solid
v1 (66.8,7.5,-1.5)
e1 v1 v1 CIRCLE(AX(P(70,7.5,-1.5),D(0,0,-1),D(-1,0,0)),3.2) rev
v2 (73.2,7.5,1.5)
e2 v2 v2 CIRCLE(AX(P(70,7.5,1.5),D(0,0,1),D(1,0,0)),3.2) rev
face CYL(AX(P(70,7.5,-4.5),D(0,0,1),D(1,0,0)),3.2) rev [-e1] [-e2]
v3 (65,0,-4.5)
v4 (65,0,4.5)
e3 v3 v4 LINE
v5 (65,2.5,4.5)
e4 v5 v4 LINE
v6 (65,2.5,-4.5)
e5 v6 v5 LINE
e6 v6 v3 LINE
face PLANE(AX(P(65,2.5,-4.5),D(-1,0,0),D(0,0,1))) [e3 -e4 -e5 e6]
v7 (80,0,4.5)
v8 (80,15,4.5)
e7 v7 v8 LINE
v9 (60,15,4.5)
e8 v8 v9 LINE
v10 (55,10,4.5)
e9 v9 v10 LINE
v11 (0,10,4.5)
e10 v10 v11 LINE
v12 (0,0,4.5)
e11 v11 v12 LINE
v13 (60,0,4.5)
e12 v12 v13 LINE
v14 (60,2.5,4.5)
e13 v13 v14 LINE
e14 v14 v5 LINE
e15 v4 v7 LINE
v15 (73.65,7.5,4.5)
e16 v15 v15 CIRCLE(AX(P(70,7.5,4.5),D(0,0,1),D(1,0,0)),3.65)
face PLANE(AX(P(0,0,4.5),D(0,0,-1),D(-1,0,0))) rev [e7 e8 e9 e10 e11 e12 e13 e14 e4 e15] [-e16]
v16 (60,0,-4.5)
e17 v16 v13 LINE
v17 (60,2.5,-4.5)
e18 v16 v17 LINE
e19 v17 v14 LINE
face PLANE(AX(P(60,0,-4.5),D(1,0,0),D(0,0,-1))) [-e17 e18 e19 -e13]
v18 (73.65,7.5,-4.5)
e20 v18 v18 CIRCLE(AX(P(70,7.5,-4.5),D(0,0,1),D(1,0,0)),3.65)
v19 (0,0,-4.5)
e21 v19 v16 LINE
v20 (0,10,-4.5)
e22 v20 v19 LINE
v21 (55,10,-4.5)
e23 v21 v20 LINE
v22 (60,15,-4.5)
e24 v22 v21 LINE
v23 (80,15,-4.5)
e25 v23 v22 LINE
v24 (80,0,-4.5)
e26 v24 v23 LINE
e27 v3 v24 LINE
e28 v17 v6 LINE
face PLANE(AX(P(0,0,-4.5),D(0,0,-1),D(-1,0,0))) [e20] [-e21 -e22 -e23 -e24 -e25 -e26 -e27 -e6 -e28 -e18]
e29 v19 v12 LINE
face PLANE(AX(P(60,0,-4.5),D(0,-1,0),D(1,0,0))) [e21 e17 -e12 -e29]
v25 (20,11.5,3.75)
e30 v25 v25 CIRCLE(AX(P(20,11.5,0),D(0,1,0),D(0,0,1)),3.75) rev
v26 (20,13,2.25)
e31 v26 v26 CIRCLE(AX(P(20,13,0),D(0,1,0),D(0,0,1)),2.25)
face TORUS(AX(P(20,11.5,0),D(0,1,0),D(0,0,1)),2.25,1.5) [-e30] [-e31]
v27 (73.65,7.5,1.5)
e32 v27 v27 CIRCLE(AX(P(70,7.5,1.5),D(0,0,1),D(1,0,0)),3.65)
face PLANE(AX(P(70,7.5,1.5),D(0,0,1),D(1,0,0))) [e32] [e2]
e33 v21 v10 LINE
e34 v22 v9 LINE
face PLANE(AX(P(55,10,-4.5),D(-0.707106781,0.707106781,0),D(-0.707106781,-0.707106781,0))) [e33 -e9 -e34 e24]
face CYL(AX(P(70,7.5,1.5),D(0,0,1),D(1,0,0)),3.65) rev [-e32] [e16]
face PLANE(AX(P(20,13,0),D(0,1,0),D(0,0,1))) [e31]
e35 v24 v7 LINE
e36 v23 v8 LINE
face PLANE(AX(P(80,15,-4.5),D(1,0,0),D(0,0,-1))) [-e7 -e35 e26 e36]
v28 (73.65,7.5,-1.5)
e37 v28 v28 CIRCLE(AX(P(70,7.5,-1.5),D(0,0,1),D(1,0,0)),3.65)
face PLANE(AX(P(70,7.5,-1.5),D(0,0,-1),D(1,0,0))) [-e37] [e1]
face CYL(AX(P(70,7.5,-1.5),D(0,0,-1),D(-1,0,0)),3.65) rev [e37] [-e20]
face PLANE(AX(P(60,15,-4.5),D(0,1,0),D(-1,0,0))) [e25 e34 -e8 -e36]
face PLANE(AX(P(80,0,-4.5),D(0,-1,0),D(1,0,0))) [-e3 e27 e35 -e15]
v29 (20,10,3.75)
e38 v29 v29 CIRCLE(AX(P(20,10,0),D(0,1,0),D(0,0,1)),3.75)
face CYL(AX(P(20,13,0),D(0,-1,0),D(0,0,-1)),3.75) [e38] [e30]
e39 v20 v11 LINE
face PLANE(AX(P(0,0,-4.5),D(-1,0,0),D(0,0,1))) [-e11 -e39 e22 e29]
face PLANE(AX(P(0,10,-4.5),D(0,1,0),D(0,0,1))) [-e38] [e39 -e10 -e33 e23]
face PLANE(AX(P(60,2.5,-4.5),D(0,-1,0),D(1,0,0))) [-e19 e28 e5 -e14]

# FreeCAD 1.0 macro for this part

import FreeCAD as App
import Part
import Sketcher


def edges_at(feature, points):
    """Names of the edges that pass closest to the given points."""
    edges = feature.Shape.Edges
    near = lambda p: min(range(len(edges)), key=lambda i: edges[i].distToShape(Part.Vertex(*p))[0])
    return sorted({f"Edge{near(p) + 1}" for p in points})

doc = App.newDocument("Part")
params = doc.addObject("Spreadsheet::Sheet", "Params")
for row, (alias, value) in enumerate([
    ("sketch1_diameter", "6.4 mm"),
    ("sketch1_width", "55 mm"),
    ("sketch1_width2", "60 mm"),
    ("sketch1_width3", "5 mm"),
    ("sketch1_width4", "15 mm"),
    ("pad1_length", "4.5 mm"),
    ("pad1_length2", "4.5 mm"),
    ("sketch2_diameter", "7.3 mm"),
    ("pocket1_length", "3 mm"),
    ("sketch3_diameter", "7.5 mm"),
    ("pad2_length", "3 mm"),
    ("fillet_radius", "1.5 mm"),
], start=1):
    params.set(f"A{row}", alias)
    params.set(f"B{row}", "=" + value)
    params.setAlias(f"B{row}", alias)

body = doc.addObject("PartDesign::Body", "Body")

sketch1 = body.newObject("Sketcher::SketchObject", "Sketch")
sketch1.AttachmentSupport = (doc.getObject("XY_Plane"), [""])
sketch1.MapMode = "FlatFace"
sketch1.addGeometry([
    Part.LineSegment(App.Vector(55, 10, 0), App.Vector(0, 10, 0)),
    Part.LineSegment(App.Vector(0, 10, 0), App.Vector(0, 0, 0)),
    Part.LineSegment(App.Vector(0, 0, 0), App.Vector(60, 0, 0)),
    Part.LineSegment(App.Vector(60, 0, 0), App.Vector(60, 2.5, 0)),
    Part.LineSegment(App.Vector(60, 2.5, 0), App.Vector(65, 2.5, 0)),
    Part.LineSegment(App.Vector(65, 2.5, 0), App.Vector(65, 0, 0)),
    Part.LineSegment(App.Vector(65, 0, 0), App.Vector(80, 0, 0)),
    Part.LineSegment(App.Vector(80, 0, 0), App.Vector(80, 15, 0)),
    Part.LineSegment(App.Vector(80, 15, 0), App.Vector(60, 15, 0)),
    Part.LineSegment(App.Vector(60, 15, 0), App.Vector(55, 10, 0)),
    Part.Circle(App.Vector(70, 7.5, 0), App.Vector(0, 0, 1), 3.2),
], False)
sketch1.addConstraint([
    Sketcher.Constraint("Coincident", 0, 2, 1, 1),
    Sketcher.Constraint("Coincident", 1, 2, 2, 1),
    Sketcher.Constraint("Coincident", 2, 2, 3, 1),
    Sketcher.Constraint("Coincident", 3, 2, 4, 1),
    Sketcher.Constraint("Coincident", 4, 2, 5, 1),
    Sketcher.Constraint("Coincident", 5, 2, 6, 1),
    Sketcher.Constraint("Coincident", 6, 2, 7, 1),
    Sketcher.Constraint("Coincident", 7, 2, 8, 1),
    Sketcher.Constraint("Coincident", 8, 2, 9, 1),
    Sketcher.Constraint("Coincident", 9, 2, 0, 1),
    Sketcher.Constraint("Horizontal", 0),
    Sketcher.Constraint("Vertical", 1),
    Sketcher.Constraint("Horizontal", 2),
    Sketcher.Constraint("Vertical", 3),
    Sketcher.Constraint("Horizontal", 4),
    Sketcher.Constraint("Vertical", 5),
    Sketcher.Constraint("Horizontal", 6),
    Sketcher.Constraint("Vertical", 7),
    Sketcher.Constraint("Horizontal", 8),
    Sketcher.Constraint("Coincident", 1, 2, -1, 1),
    Sketcher.Constraint("PointOnObject", 5, 2, -1),
    Sketcher.Constraint("Vertical", 3, 2, 8, 2),
    Sketcher.Constraint("Equal", 6, 7),
    Sketcher.Constraint("Diameter", 10, 6.4),
    Sketcher.Constraint("DistanceX", 0, 2, 0, 1, 55.0),
    Sketcher.Constraint("DistanceX", 2, 1, 2, 2, 60.0),
    Sketcher.Constraint("DistanceX", 4, 1, 4, 2, 5.0),
    Sketcher.Constraint("DistanceX", 6, 1, 6, 2, 15.0),
    Sketcher.Constraint("DistanceY", 1, 2, 1, 1, 10.0),
    Sketcher.Constraint("DistanceY", 3, 1, 3, 2, 2.5),
    Sketcher.Constraint("DistanceX", -1, 1, 10, 3, 70.0),
    Sketcher.Constraint("DistanceY", 3, 2, 10, 3, 5.0),
])
sketch1.setExpression("Constraints[23]", "Params.sketch1_diameter")
sketch1.setExpression("Constraints[24]", "Params.sketch1_width")
sketch1.setExpression("Constraints[25]", "Params.sketch1_width2")
sketch1.setExpression("Constraints[26]", "Params.sketch1_width3")
sketch1.setExpression("Constraints[27]", "Params.sketch1_width4")
pad1 = body.newObject("PartDesign::Pad", "Pad")
pad1.Profile = sketch1
pad1.Type = "TwoLengths"
pad1.setExpression("Length", "Params.pad1_length")
pad1.setExpression("Length2", "Params.pad1_length2")

sketch2 = body.newObject("Sketcher::SketchObject", "Sketch001")
sketch2.AttachmentSupport = (doc.getObject("XY_Plane"), [""])
sketch2.MapMode = "FlatFace"
sketch2.AttachmentOffset = App.Placement(App.Vector(0, 0, 4.5), App.Rotation())
sketch2.addGeometry(Part.Circle(App.Vector(70, 7.5, 0), App.Vector(0, 0, 1), 3.6), False)
sketch2.addConstraint([
    Sketcher.Constraint("Diameter", 0, 7.3),
    Sketcher.Constraint("DistanceX", -1, 1, 0, 3, 70.0),
    Sketcher.Constraint("DistanceY", -1, 1, 0, 3, 7.5),
])
sketch2.setExpression("Constraints[0]", "Params.sketch2_diameter")
pocket1 = body.newObject("PartDesign::Pocket", "Pocket")
pocket1.Profile = sketch2
pocket1.setExpression("Length", "Params.pocket1_length")
doc.recompute()

mirrored = body.newObject("PartDesign::Mirrored", "Mirrored")
mirrored.Originals = [pocket1]
mirrored.MirrorPlane = (doc.getObject("XY_Plane"), [""])
body.Tip = mirrored

sketch3 = body.newObject("Sketcher::SketchObject", "Sketch002")
sketch3.AttachmentSupport = (doc.getObject("XZ_Plane"), [""])
sketch3.MapMode = "FlatFace"
sketch3.AttachmentOffset = App.Placement(App.Vector(0, 0, -10), App.Rotation())
sketch3.addGeometry(Part.Circle(App.Vector(20, 0, 0), App.Vector(0, 0, 1), 3.8), False)
sketch3.addConstraint([
    Sketcher.Constraint("PointOnObject", 0, 3, -1),
    Sketcher.Constraint("Diameter", 0, 7.5),
    Sketcher.Constraint("DistanceX", -1, 1, 0, 3, 20.0),
])
sketch3.setExpression("Constraints[1]", "Params.sketch3_diameter")
pad2 = body.newObject("PartDesign::Pad", "Pad001")
pad2.Profile = sketch3
pad2.setExpression("Length", "Params.pad2_length")
pad2.Reversed = True
doc.recompute()

fillet = body.newObject("PartDesign::Fillet", "Fillet")
fillet.Base = (pad2, edges_at(pad2, [(20, 13, -3.75)]))
fillet.setExpression("Radius", "Params.fillet_radius")

doc.recompute()
